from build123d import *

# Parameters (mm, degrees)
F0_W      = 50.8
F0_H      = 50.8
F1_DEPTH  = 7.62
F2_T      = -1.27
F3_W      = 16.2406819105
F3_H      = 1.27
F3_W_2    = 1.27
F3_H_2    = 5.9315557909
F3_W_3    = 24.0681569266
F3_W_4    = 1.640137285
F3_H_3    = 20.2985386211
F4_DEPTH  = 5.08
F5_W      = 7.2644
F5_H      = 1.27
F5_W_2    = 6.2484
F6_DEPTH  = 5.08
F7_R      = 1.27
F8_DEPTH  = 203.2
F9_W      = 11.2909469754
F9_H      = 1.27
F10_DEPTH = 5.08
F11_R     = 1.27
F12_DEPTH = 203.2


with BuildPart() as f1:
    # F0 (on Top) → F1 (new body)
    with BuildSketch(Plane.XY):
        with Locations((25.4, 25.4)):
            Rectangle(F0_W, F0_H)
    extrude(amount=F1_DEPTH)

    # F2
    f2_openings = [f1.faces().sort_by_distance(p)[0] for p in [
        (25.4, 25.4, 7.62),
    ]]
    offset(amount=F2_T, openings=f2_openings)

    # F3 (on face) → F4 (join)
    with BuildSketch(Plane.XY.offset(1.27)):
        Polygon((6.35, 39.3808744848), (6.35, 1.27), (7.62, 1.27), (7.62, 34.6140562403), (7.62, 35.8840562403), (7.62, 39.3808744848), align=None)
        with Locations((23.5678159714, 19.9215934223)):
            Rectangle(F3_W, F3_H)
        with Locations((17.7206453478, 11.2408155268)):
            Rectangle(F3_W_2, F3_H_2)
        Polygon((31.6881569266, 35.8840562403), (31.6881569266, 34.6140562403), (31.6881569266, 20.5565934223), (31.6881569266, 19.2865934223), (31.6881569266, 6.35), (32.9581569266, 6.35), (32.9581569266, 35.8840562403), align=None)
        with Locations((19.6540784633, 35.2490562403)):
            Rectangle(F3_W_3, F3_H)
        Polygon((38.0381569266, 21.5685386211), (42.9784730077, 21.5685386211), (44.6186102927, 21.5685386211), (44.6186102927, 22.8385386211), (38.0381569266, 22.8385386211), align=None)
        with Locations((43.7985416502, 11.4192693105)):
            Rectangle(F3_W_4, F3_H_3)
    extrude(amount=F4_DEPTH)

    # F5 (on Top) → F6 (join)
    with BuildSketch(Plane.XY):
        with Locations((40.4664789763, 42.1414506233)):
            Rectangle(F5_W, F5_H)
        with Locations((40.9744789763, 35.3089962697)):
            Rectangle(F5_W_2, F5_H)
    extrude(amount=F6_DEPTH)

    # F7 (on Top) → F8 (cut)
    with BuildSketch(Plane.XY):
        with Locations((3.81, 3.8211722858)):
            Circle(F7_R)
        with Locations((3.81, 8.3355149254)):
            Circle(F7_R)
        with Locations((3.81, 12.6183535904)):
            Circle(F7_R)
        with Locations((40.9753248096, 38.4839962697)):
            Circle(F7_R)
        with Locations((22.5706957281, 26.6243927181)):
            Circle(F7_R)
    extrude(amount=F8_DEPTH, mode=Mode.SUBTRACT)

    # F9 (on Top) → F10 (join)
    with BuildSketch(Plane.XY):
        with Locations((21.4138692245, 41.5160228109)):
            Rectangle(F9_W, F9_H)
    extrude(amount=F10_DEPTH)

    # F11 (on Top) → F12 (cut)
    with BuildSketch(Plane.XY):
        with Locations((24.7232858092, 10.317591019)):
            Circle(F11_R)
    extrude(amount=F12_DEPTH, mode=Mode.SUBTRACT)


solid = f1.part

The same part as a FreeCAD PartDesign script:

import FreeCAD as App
import Part
import Sketcher
Q = App.Units.Quantity


def faces_at(feature, points):
    """Names of the faces that lie closest to the given points."""
    faces = feature.Shape.Faces
    near = lambda p: min(range(len(faces)), key=lambda i: faces[i].distToShape(Part.Vertex(*p))[0])
    return sorted({f"Face{near(p) + 1}" for p in points})

doc = App.newDocument("Part")
body = doc.addObject("PartDesign::Body", "Body")

sketch1 = doc.addObject("Sketcher::SketchObject", "Sketch")
body.addObject(sketch1)
sketch1.AttachmentSupport = (doc.XY_Plane, [""])
sketch1.MapMode = "FlatFace"
sketch1.addGeometry([
    Part.LineSegment(App.Vector(0, 51, 0), App.Vector(0, 0, 0)),
    Part.LineSegment(App.Vector(0, 0, 0), App.Vector(51, 0, 0)),
    Part.LineSegment(App.Vector(51, 0, 0), App.Vector(51, 51, 0)),
    Part.LineSegment(App.Vector(51, 51, 0), App.Vector(0, 51, 0)),
], False)
sketch1.addConstraint([
    Sketcher.Constraint("Coincident", 0, 2, 1, 1),
    Sketcher.Constraint("Coincident", 1, 2, 2, 1),
    Sketcher.Constraint("Coincident", 2, 2, 3, 1),
    Sketcher.Constraint("Coincident", 3, 2, 0, 1),
    Sketcher.Constraint("Vertical", 0),
    Sketcher.Constraint("Horizontal", 1),
    Sketcher.Constraint("Vertical", 2),
    Sketcher.Constraint("Horizontal", 3),
    Sketcher.Constraint("Coincident", 0, 2, -1, 1),
    Sketcher.Constraint("Equal", 3, 0),
    Sketcher.Constraint("DistanceX", 1, 1, 1, 2, Q("2 in")),
])
pad1 = doc.addObject("PartDesign::Pad", "Pad")
body.addObject(pad1)
pad1.Profile = sketch1
pad1.Length = Q("0.3 in")
doc.recompute()

thickness = doc.addObject("PartDesign::Thickness", "Thickness")
body.addObject(thickness)
thickness.Base = (pad1, faces_at(pad1, [(25.4, 25.4, 7.62)]))
thickness.Value = Q("0.05 in")
thickness.Reversed = True
thickness.Join = "Arc"

sketch2 = doc.addObject("Sketcher::SketchObject", "Sketch001")
body.addObject(sketch2)
sketch2.AttachmentSupport = (doc.XY_Plane, [""])
sketch2.MapMode = "FlatFace"
sketch2.AttachmentOffset = App.Placement(App.Vector(0, 0, 0.05 * 25.4), App.Rotation())
sketch2.addGeometry([
    Part.LineSegment(App.Vector(6.3, 39.4, 0), App.Vector(6.3, 1.3, 0)),
    Part.LineSegment(App.Vector(6.3, 1.3, 0), App.Vector(7.6, 1.3, 0)),
    Part.LineSegment(App.Vector(7.6, 1.3, 0), App.Vector(7.6, 34.6, 0)),
    Part.LineSegment(App.Vector(7.6, 34.6, 0), App.Vector(31.7, 34.6, 0)),
    Part.LineSegment(App.Vector(31.7, 34.6, 0), App.Vector(31.7, 20.6, 0)),
    Part.LineSegment(App.Vector(31.7, 20.6, 0), App.Vector(15.4, 20.6, 0)),
    Part.LineSegment(App.Vector(15.4, 20.6, 0), App.Vector(15.4, 19.3, 0)),
    Part.LineSegment(App.Vector(15.4, 19.3, 0), App.Vector(31.7, 19.3, 0)),
    Part.LineSegment(App.Vector(31.7, 19.3, 0), App.Vector(31.7, 6.3, 0)),
    Part.LineSegment(App.Vector(31.7, 6.3, 0), App.Vector(33, 6.3, 0)),
    Part.LineSegment(App.Vector(33, 6.3, 0), App.Vector(33, 35.9, 0)),
    Part.LineSegment(App.Vector(33, 35.9, 0), App.Vector(7.6, 35.9, 0)),
    Part.LineSegment(App.Vector(7.6, 35.9, 0), App.Vector(7.6, 39.4, 0)),
    Part.LineSegment(App.Vector(7.6, 39.4, 0), App.Vector(6.3, 39.4, 0)),
    Part.LineSegment(App.Vector(17.1, 14.2, 0), App.Vector(17.1, 8.3, 0)),
    Part.LineSegment(App.Vector(17.1, 8.3, 0), App.Vector(18.4, 8.3, 0)),
    Part.LineSegment(App.Vector(18.4, 8.3, 0), App.Vector(18.4, 14.2, 0)),
    Part.LineSegment(App.Vector(18.4, 14.2, 0), App.Vector(17.1, 14.2, 0)),
    Part.LineSegment(App.Vector(38, 21.6, 0), App.Vector(43, 21.6, 0)),
    Part.LineSegment(App.Vector(43, 21.6, 0), App.Vector(43, 1.3, 0)),
    Part.LineSegment(App.Vector(43, 1.3, 0), App.Vector(44.6, 1.3, 0)),
    Part.LineSegment(App.Vector(44.6, 1.3, 0), App.Vector(44.6, 22.8, 0)),
    Part.LineSegment(App.Vector(44.6, 22.8, 0), App.Vector(38, 22.8, 0)),
    Part.LineSegment(App.Vector(38, 22.8, 0), App.Vector(38, 21.6, 0)),
], False)
sketch2.addConstraint([
    Sketcher.Constraint("Coincident", 0, 2, 1, 1),
    Sketcher.Constraint("Coincident", 1, 2, 2, 1),
    Sketcher.Constraint("Coincident", 2, 2, 3, 1),
    Sketcher.Constraint("Coincident", 3, 2, 4, 1),
    Sketcher.Constraint("Coincident", 4, 2, 5, 1),
    Sketcher.Constraint("Coincident", 5, 2, 6, 1),
    Sketcher.Constraint("Coincident", 6, 2, 7, 1),
    Sketcher.Constraint("Coincident", 7, 2, 8, 1),
    Sketcher.Constraint("Coincident", 8, 2, 9, 1),
    Sketcher.Constraint("Coincident", 9, 2, 10, 1),
    Sketcher.Constraint("Coincident", 10, 2, 11, 1),
    Sketcher.Constraint("Coincident", 11, 2, 12, 1),
    Sketcher.Constraint("Coincident", 12, 2, 13, 1),
    Sketcher.Constraint("Coincident", 13, 2, 0, 1),
    Sketcher.Constraint("Coincident", 14, 2, 15, 1),
    Sketcher.Constraint("Coincident", 15, 2, 16, 1),
    Sketcher.Constraint("Coincident", 16, 2, 17, 1),
    Sketcher.Constraint("Coincident", 17, 2, 14, 1),
    Sketcher.Constraint("Coincident", 18, 2, 19, 1),
    Sketcher.Constraint("Coincident", 19, 2, 20, 1),
    Sketcher.Constraint("Coincident", 20, 2, 21, 1),
    Sketcher.Constraint("Coincident", 21, 2, 22, 1),
    Sketcher.Constraint("Coincident", 22, 2, 23, 1),
    Sketcher.Constraint("Coincident", 23, 2, 18, 1),
    Sketcher.Constraint("Vertical", 0),
    Sketcher.Constraint("Horizontal", 1),
    Sketcher.Constraint("Vertical", 2),
    Sketcher.Constraint("Horizontal", 3),
    Sketcher.Constraint("Vertical", 4),
    Sketcher.Constraint("Horizontal", 5),
    Sketcher.Constraint("Vertical", 6),
    Sketcher.Constraint("Horizontal", 7),
    Sketcher.Constraint("Vertical", 8),
    Sketcher.Constraint("Horizontal", 9),
    Sketcher.Constraint("Vertical", 10),
    Sketcher.Constraint("Horizontal", 11),
    Sketcher.Constraint("Vertical", 12),
    Sketcher.Constraint("Horizontal", 13),
    Sketcher.Constraint("Vertical", 14),
    Sketcher.Constraint("Horizontal", 15),
    Sketcher.Constraint("Vertical", 16),
    Sketcher.Constraint("Horizontal", 17),
    Sketcher.Constraint("Horizontal", 18),
    Sketcher.Constraint("Vertical", 19),
    Sketcher.Constraint("Horizontal", 20),
    Sketcher.Constraint("Vertical", 21),
    Sketcher.Constraint("Horizontal", 22),
    Sketcher.Constraint("Vertical", 23),
    Sketcher.Constraint("Horizontal", 1, 2, 19, 2),
    Sketcher.Constraint("Vertical", 4, 2, 7, 2),
    Sketcher.Constraint("Vertical", 2, 2, 11, 2),
    Sketcher.Constraint("Equal", 1, 9),
    Sketcher.Constraint("Equal", 13, 15),
    Sketcher.Constraint("Equal", 17, 6),
    Sketcher.Constraint("Equal", 6, 23),
    Sketcher.Constraint("DistanceX", 1, 1, 1, 2, Q("0.05 in")),
    Sketcher.Constraint("DistanceX", -1, 1, 1, 2, Q("0.3 in")),
    Sketcher.Constraint("DistanceY", 1, 2, 8, 2, Q("0.2 in")),
    Sketcher.Constraint("DistanceY", 16, 2, 6, 2, Q("0.2 in")),
    Sketcher.Constraint("DistanceY", -1, 1, 0, 2, Q("0.05 in")),
    Sketcher.Constraint("DistanceY", 3, 2, 10, 2, Q("0.05 in")),
    Sketcher.Constraint("DistanceX", 4, 2, 22, 2, Q("0.25 in")),
    Sketcher.Constraint("DistanceX", 5, 2, 5, 1, Q("16.240682 mm")),
    Sketcher.Constraint("DistanceY", 12, 1, 12, 2, Q("3.496818 mm")),
    Sketcher.Constraint("DistanceY", 19, 2, 19, 1, Q("20.298539 mm")),
    Sketcher.Constraint("DistanceX", 3, 1, 3, 2, Q("24.068157 mm")),
    Sketcher.Constraint("DistanceX", 18, 1, 18, 2, Q("4.940316 mm")),
    Sketcher.Constraint("DistanceX", 20, 1, 20, 2, Q("1.640137 mm")),
    Sketcher.Constraint("DistanceY", 0, 2, 0, 1, Q("38.110874 mm")),
    Sketcher.Constraint("DistanceY", 4, 2, 4, 1, Q("14.057463 mm")),
    Sketcher.Constraint("DistanceY", 14, 2, 14, 1, Q("5.931556 mm")),
    Sketcher.Constraint("DistanceX", 6, 2, 14, 2, Q("1.63817 mm")),
])
pad2 = doc.addObject("PartDesign::Pad", "Pad001")
body.addObject(pad2)
pad2.Profile = sketch2
pad2.Length = Q("0.2 in")

sketch3 = doc.addObject("Sketcher::SketchObject", "Sketch002")
body.addObject(sketch3)
sketch3.AttachmentSupport = (doc.XY_Plane, [""])
sketch3.MapMode = "FlatFace"
sketch3.addGeometry([
    Part.LineSegment(App.Vector(36.8, 42.8, 0), App.Vector(36.8, 41.5, 0)),
    Part.LineSegment(App.Vector(36.8, 41.5, 0), App.Vector(44.1, 41.5, 0)),
    Part.LineSegment(App.Vector(44.1, 41.5, 0), App.Vector(44.1, 42.8, 0)),
    Part.LineSegment(App.Vector(44.1, 42.8, 0), App.Vector(36.8, 42.8, 0)),
    Part.LineSegment(App.Vector(37.9, 35.9, 0), App.Vector(37.9, 34.7, 0)),
    Part.LineSegment(App.Vector(37.9, 34.7, 0), App.Vector(44.1, 34.7, 0)),
    Part.LineSegment(App.Vector(44.1, 34.7, 0), App.Vector(44.1, 35.9, 0)),
    Part.LineSegment(App.Vector(44.1, 35.9, 0), App.Vector(37.9, 35.9, 0)),
], False)
sketch3.addConstraint([
    Sketcher.Constraint("Coincident", 0, 2, 1, 1),
    Sketcher.Constraint("Coincident", 1, 2, 2, 1),
    Sketcher.Constraint("Coincident", 2, 2, 3, 1),
    Sketcher.Constraint("Coincident", 3, 2, 0, 1),
    Sketcher.Constraint("Coincident", 4, 2, 5, 1),
    Sketcher.Constraint("Coincident", 5, 2, 6, 1),
    Sketcher.Constraint("Coincident", 6, 2, 7, 1),
    Sketcher.Constraint("Coincident", 7, 2, 4, 1),
    Sketcher.Constraint("Vertical", 0),
    Sketcher.Constraint("Horizontal", 1),
    Sketcher.Constraint("Vertical", 2),
    Sketcher.Constraint("Horizontal", 3),
    Sketcher.Constraint("Vertical", 4),
    Sketcher.Constraint("Horizontal", 5),
    Sketcher.Constraint("Vertical", 6),
    Sketcher.Constraint("Horizontal", 7),
    Sketcher.Constraint("Vertical", 2, 2, 5, 2),
    Sketcher.Constraint("Equal", 2, 4),
    Sketcher.Constraint("DistanceY", 0, 2, 0, 1, Q("0.05 in")),
    Sketcher.Constraint("DistanceX", 1, 1, 1, 2, Q("0.286 in")),
    Sketcher.Constraint("DistanceX", 5, 1, 5, 2, Q("0.246 in")),
    Sketcher.Constraint("DistanceX", -1, 1, 0, 2, Q("36.834279 mm")),
    Sketcher.Constraint("DistanceY", -1, 1, 0, 2, Q("41.506451 mm")),
    Sketcher.Constraint("DistanceY", -1, 1, 4, 2, Q("34.673996 mm")),
])
pad3 = doc.addObject("PartDesign::Pad", "Pad002")
body.addObject(pad3)
pad3.Profile = sketch3
pad3.Length = Q("0.2 in")

sketch4 = doc.addObject("Sketcher::SketchObject", "Sketch003")
body.addObject(sketch4)
sketch4.AttachmentSupport = (doc.XY_Plane, [""])
sketch4.MapMode = "FlatFace"
sketch4.addGeometry([
    Part.Circle(App.Vector(3.8, 3.8, 0), App.Vector(0, 0, 1), 1.3),
    Part.Circle(App.Vector(3.8, 8.3, 0), App.Vector(0, 0, 1), 1.3),
    Part.Circle(App.Vector(3.8, 12.6, 0), App.Vector(0, 0, 1), 1.3),
    Part.Circle(App.Vector(41, 38.5, 0), App.Vector(0, 0, 1), 1.3),
    Part.Circle(App.Vector(22.6, 26.6, 0), App.Vector(0, 0, 1), 1.3),
], False)
sketch4.addConstraint([
    Sketcher.Constraint("Equal", 0, 1),
    Sketcher.Constraint("Equal", 1, 2),
    Sketcher.Constraint("Equal", 2, 3),
    Sketcher.Constraint("Equal", 3, 4),
    Sketcher.Constraint("Vertical", 0, 3, 1, 3),
    Sketcher.Constraint("Vertical", 1, 3, 2, 3),
    Sketcher.Constraint("Diameter", 0, Q("0.1 in")),
    Sketcher.Constraint("DistanceX", -1, 1, 0, 3, Q("0.15 in")),
    Sketcher.Constraint("DistanceY", 1, 3, 2, 3, Q("4.282839 mm")),
    Sketcher.Constraint("DistanceY", 0, 3, 2, 3, Q("8.797181 mm")),
    Sketcher.Constraint("DistanceY", 1, 3, 3, 3, Q("30.148481 mm")),
    Sketcher.Constraint("DistanceX", 4, 3, 3, 3, Q("18.404629 mm")),
    Sketcher.Constraint("DistanceY", 2, 3, 4, 3, Q("14.006039 mm")),
    Sketcher.Constraint("DistanceY", -1, 1, 0, 3, Q("3.821172 mm")),
    Sketcher.Constraint("DistanceX", -1, 1, 3, 3, Q("40.975325 mm")),
])
pocket1 = doc.addObject("PartDesign::Pocket", "Pocket")
body.addObject(pocket1)
pocket1.Profile = sketch4
pocket1.Length = Q("8 in")
pocket1.Reversed = True

sketch5 = doc.addObject("Sketcher::SketchObject", "Sketch004")
body.addObject(sketch5)
sketch5.AttachmentSupport = (doc.XY_Plane, [""])
sketch5.MapMode = "FlatFace"
sketch5.addGeometry([
    Part.LineSegment(App.Vector(15.8, 42.2, 0), App.Vector(15.8, 40.9, 0)),
    Part.LineSegment(App.Vector(15.8, 40.9, 0), App.Vector(27.1, 40.9, 0)),
    Part.LineSegment(App.Vector(27.1, 40.9, 0), App.Vector(27.1, 42.2, 0)),
    Part.LineSegment(App.Vector(27.1, 42.2, 0), App.Vector(15.8, 42.2, 0)),
], False)
sketch5.addConstraint([
    Sketcher.Constraint("Coincident", 0, 2, 1, 1),
    Sketcher.Constraint("Coincident", 1, 2, 2, 1),
    Sketcher.Constraint("Coincident", 2, 2, 3, 1),
    Sketcher.Constraint("Coincident", 3, 2, 0, 1),
    Sketcher.Constraint("Vertical", 0),
    Sketcher.Constraint("Horizontal", 1),
    Sketcher.Constraint("Vertical", 2),
    Sketcher.Constraint("Horizontal", 3),
    Sketcher.Constraint("DistanceY", 0, 2, 0, 1, Q("0.05 in")),
    Sketcher.Constraint("DistanceX", 1, 1, 1, 2, Q("11.290947 mm")),
    Sketcher.Constraint("DistanceX", -1, 1, 0, 2, Q("15.768396 mm")),
    Sketcher.Constraint("DistanceY", -1, 1, 0, 2, Q("40.881023 mm")),
])
pad4 = doc.addObject("PartDesign::Pad", "Pad003")
body.addObject(pad4)
pad4.Profile = sketch5
pad4.Length = Q("0.2 in")

sketch6 = doc.addObject("Sketcher::SketchObject", "Sketch005")
body.addObject(sketch6)
sketch6.AttachmentSupport = (doc.XY_Plane, [""])
sketch6.MapMode = "FlatFace"
sketch6.addGeometry(Part.Circle(App.Vector(24.7, 10.3, 0), App.Vector(0, 0, 1), 1.3), False)
sketch6.addConstraint([
    Sketcher.Constraint("Diameter", 0, Q("0.1 in")),
    Sketcher.Constraint("DistanceY", -1, 1, 0, 3, Q("10.317591 mm")),
    Sketcher.Constraint("DistanceX", -1, 1, 0, 3, Q("24.723286 mm")),
])
pocket2 = doc.addObject("PartDesign::Pocket", "Pocket001")
body.addObject(pocket2)
pocket2.Profile = sketch6
pocket2.Length = Q("8 in")
pocket2.Reversed = True

doc.recompute()
